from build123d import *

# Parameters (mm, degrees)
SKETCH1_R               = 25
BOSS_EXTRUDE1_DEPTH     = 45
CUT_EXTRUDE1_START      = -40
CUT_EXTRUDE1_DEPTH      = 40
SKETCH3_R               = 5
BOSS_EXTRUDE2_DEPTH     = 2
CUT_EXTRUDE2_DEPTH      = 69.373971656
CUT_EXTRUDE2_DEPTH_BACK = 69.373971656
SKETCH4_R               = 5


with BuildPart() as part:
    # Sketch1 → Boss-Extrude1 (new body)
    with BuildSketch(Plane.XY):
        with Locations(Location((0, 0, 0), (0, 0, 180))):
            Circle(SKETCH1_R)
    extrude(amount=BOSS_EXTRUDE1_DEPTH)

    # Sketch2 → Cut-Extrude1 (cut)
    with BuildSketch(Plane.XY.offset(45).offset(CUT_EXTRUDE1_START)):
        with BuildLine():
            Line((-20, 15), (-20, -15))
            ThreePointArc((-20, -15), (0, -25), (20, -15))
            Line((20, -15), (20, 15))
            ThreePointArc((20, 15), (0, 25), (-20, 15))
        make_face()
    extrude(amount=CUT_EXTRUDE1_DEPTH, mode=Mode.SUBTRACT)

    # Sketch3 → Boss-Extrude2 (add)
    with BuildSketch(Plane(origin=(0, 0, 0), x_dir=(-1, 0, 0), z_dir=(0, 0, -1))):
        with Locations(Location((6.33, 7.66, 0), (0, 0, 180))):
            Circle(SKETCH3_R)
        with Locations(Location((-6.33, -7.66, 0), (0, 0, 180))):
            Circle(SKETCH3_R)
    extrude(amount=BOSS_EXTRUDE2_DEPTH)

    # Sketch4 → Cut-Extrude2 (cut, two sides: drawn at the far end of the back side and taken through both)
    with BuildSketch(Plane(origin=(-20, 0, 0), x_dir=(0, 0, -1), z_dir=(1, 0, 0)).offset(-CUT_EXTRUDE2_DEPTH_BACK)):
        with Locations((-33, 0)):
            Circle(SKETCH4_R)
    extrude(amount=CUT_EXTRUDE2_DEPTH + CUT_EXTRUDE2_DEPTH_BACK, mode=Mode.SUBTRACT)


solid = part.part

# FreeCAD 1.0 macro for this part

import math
import FreeCAD as App
import Part
import Sketcher

V = App.Vector

doc = App.newDocument("Part")
params = doc.addObject("Spreadsheet::Sheet", "Params")
for row, (alias, value) in enumerate([
    ("sketch1_diameter", "50 mm"),
    ("pad1_length", "45 mm"),
    ("sketch2_radius", "25 mm"),
    ("sketch2_height", "30 mm"),
    ("pocket1_length", "40 mm"),
    ("sketch3_diameter", "10 mm"),
    ("pad2_length", "2 mm"),
    ("sketch4_diameter", "10 mm"),
], start=1):
    params.set(f"A{row}", alias)
    params.set(f"B{row}", "=" + value)
    params.setAlias(f"B{row}", alias)

body = doc.addObject("PartDesign::Body", "Body")

sketch1 = body.newObject("Sketcher::SketchObject", "Sketch")
sketch1.AttachmentSupport = (doc.getObject("XY_Plane"), [""])
sketch1.MapMode = "FlatFace"
sketch1.addGeometry(Part.Circle(V(0, 0, 0), V(0, 0, 1), 25), False)
sketch1.addConstraint([
    Sketcher.Constraint("Coincident", 0, 3, -1, 1),
    Sketcher.Constraint("Diameter", 0, 50.0),
])
sketch1.setExpression("Constraints[1]", "Params.sketch1_diameter")
pad1 = body.newObject("PartDesign::Pad", "Pad")
pad1.Profile = sketch1
pad1.setExpression("Length", "Params.pad1_length")

sketch2 = body.newObject("Sketcher::SketchObject", "Sketch001")
sketch2.AttachmentSupport = (doc.getObject("XY_Plane"), [""])
sketch2.MapMode = "FlatFace"
sketch2.AttachmentOffset = App.Placement(V(0, 0, 5), App.Rotation())
sketch2.addGeometry([
    Part.LineSegment(V(-20, 15, 0), V(-20, -15, 0)),
    Part.ArcOfCircle(Part.Circle(V(0, 0, 0), V(0, 0, 1), 25), math.radians(-143), math.radians(-37)),
    Part.LineSegment(V(20, -15, 0), V(20, 15, 0)),
    Part.ArcOfCircle(Part.Circle(V(0, 0, 0), V(0, 0, 1), 25), math.radians(37), math.radians(143)),
], False)
sketch2.addConstraint([
    Sketcher.Constraint("Coincident", 0, 2, 1, 1),
    Sketcher.Constraint("Coincident", 1, 2, 2, 1),
    Sketcher.Constraint("Coincident", 2, 2, 3, 1),
    Sketcher.Constraint("Coincident", 3, 2, 0, 1),
    Sketcher.Constraint("Vertical", 0),
    Sketcher.Constraint("Vertical", 2),
    Sketcher.Constraint("Coincident", 1, 3, -1, 1),
    Sketcher.Constraint("Coincident", 3, 3, -1, 1),
    Sketcher.Constraint("Equal", 1, 3),
    Sketcher.Constraint("Horizontal", 0, 2, 1, 2),
    Sketcher.Constraint("Radius", 1, 25.0),
    Sketcher.Constraint("DistanceY", 0, 2, 0, 1, 30.0),
])
sketch2.setExpression("Constraints[10]", "Params.sketch2_radius")
sketch2.setExpression("Constraints[11]", "Params.sketch2_height")
pocket1 = body.newObject("PartDesign::Pocket", "Pocket")
pocket1.Profile = sketch2
pocket1.setExpression("Length", "Params.pocket1_length")
pocket1.Reversed = True

sketch3 = body.newObject("Sketcher::SketchObject", "Sketch002")
sketch3.AttachmentSupport = (doc.getObject("XY_Plane"), [""])
sketch3.MapMode = "FlatFace"
sketch3.addGeometry([
    Part.Circle(V(-6, 8, 0), V(0, 0, 1), 5),
    Part.Circle(V(6, -8, 0), V(0, 0, 1), 5),
], False)
sketch3.addConstraint([
    Sketcher.Constraint("Equal", 0, 1),
    Sketcher.Constraint("Symmetric", 0, 3, 1, 3, -1, 1),
    Sketcher.Constraint("Diameter", 0, 10.0),
    Sketcher.Constraint("DistanceX", 0, 3, -1, 1, 6.33),
    Sketcher.Constraint("DistanceY", -1, 1, 0, 3, 7.66),
])
sketch3.setExpression("Constraints[2]", "Params.sketch3_diameter")
pad2 = body.newObject("PartDesign::Pad", "Pad001")
pad2.Profile = sketch3
pad2.setExpression("Length", "Params.pad2_length")
pad2.Reversed = True

sketch4 = body.newObject("Sketcher::SketchObject", "Sketch003")
sketch4.AttachmentSupport = (doc.getObject("YZ_Plane"), [""])
sketch4.MapMode = "FlatFace"
sketch4.AttachmentOffset = App.Placement(V(0, 0, -20), App.Rotation())
sketch4.addGeometry(Part.Circle(V(0, 33, 0), V(0, 0, 1), 5), False)
sketch4.addConstraint([
    Sketcher.Constraint("PointOnObject", 0, 3, -2),
    Sketcher.Constraint("Diameter", 0, 10.0),
    Sketcher.Constraint("DistanceY", -1, 1, 0, 3, 33.0),
])
sketch4.setExpression("Constraints[1]", "Params.sketch4_diameter")
pocket2 = body.newObject("PartDesign::Pocket", "Pocket001")
pocket2.Profile = sketch4
pocket2.Type = "ThroughAll"
pocket2.Midplane = True

doc.recompute()
